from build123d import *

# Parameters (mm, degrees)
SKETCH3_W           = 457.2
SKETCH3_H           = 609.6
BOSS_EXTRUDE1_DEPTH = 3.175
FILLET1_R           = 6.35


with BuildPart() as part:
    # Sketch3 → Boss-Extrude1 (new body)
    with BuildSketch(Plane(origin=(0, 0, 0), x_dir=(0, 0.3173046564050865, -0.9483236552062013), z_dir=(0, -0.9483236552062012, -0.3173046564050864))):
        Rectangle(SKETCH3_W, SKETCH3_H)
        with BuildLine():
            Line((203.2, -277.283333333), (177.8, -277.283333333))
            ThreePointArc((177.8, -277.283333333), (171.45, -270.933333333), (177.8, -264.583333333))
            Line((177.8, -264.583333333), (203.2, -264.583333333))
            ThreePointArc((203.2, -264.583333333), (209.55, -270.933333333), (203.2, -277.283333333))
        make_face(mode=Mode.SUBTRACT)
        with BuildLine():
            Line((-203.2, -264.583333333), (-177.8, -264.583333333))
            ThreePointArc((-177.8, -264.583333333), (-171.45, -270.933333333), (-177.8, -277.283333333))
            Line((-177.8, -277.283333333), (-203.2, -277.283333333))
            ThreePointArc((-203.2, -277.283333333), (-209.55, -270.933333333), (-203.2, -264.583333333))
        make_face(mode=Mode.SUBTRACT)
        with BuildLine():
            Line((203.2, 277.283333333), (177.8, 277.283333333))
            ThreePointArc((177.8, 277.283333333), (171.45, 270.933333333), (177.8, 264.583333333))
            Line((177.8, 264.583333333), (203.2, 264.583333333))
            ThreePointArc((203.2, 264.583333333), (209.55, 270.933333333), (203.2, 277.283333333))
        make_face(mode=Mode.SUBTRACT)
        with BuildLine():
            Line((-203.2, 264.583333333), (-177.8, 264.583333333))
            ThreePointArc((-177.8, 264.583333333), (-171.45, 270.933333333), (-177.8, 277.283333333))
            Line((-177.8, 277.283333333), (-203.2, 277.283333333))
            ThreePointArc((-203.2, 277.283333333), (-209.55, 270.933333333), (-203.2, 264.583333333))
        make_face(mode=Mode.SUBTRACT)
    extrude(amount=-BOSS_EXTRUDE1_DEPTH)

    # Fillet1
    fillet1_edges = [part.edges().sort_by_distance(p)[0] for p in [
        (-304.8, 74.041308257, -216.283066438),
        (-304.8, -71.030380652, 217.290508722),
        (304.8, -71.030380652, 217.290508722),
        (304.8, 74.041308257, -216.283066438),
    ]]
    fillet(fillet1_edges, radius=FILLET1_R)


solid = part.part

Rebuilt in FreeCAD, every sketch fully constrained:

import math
import FreeCAD as App
import Part
import Sketcher
from FreeCAD import Vector
Q = App.Units.Quantity


def edges_at(feature, points):
    """Names of the edges that pass closest to the given points."""
    edges = feature.Shape.Edges
    near = lambda p: min(range(len(edges)), key=lambda i: edges[i].distToShape(Part.Vertex(*p))[0])
    return sorted({f"Edge{near(p) + 1}" for p in points})


def add_polygon(sketch, points):
    """Adds a closed chain of lines whose ends are joined by coincident constraints."""
    first, n = sketch.GeometryCount, len(points)
    for a, b in zip(points, points[1:] + points[:1]):
        sketch.addGeometry(Part.LineSegment(App.Vector(*a, 0), App.Vector(*b, 0)), False)
    for i in range(n):
        sketch.addConstraint(Sketcher.Constraint("Coincident", first + i, 2, first + (i + 1) % n, 1))

doc = App.newDocument("Part")
body = doc.addObject("PartDesign::Body", "Body")

sketch1 = body.newObject("Sketcher::SketchObject", "Sketch")
sketch1.Placement = App.Placement(Vector(0, 0, 0), App.Rotation(Vector(0, 0.317304656, -0.948323655), Vector(0.999999999, 0, 0), Vector(0, -0.948323655, -0.317304656), "ZXY"))
add_polygon(sketch1, [(-229, 305), (-229, -305), (229, -305), (229, 305)])
sketch1.addGeometry(Part.ArcOfCircle(Part.Circle(Vector(-203, -271, 0), Vector(0, 0, 1), 6), math.radians(90), math.radians(270)), False)
sketch1.addGeometry(Part.LineSegment(Vector(-203, -265, 0), Vector(-178, -265, 0)), False)
sketch1.addGeometry(Part.ArcOfCircle(Part.Circle(Vector(-178, -271, 0), Vector(0, 0, 1), 6), math.radians(-90), math.radians(90)), False)
sketch1.addGeometry(Part.LineSegment(Vector(-178, -277, 0), Vector(-203, -277, 0)), False)
sketch1.addGeometry(Part.ArcOfCircle(Part.Circle(Vector(203, -271, 0), Vector(0, 0, 1), 6), math.radians(-90), math.radians(90)), False)
sketch1.addGeometry(Part.LineSegment(Vector(203, -277, 0), Vector(178, -277, 0)), False)
sketch1.addGeometry(Part.ArcOfCircle(Part.Circle(Vector(178, -271, 0), Vector(0, 0, 1), 6), math.radians(90), math.radians(270)), False)
sketch1.addGeometry(Part.LineSegment(Vector(178, -265, 0), Vector(203, -265, 0)), False)
sketch1.addGeometry(Part.LineSegment(Vector(-178, 265, 0), Vector(-203, 265, 0)), False)
sketch1.addGeometry(Part.ArcOfCircle(Part.Circle(Vector(-203, 271, 0), Vector(0, 0, 1), 6), math.radians(90), math.radians(270)), False)
sketch1.addGeometry(Part.LineSegment(Vector(-203, 277, 0), Vector(-178, 277, 0)), False)
sketch1.addGeometry(Part.ArcOfCircle(Part.Circle(Vector(-178, 271, 0), Vector(0, 0, 1), 6), math.radians(-90), math.radians(90)), False)
sketch1.addGeometry(Part.LineSegment(Vector(178, 277, 0), Vector(203, 277, 0)), False)
sketch1.addGeometry(Part.ArcOfCircle(Part.Circle(Vector(203, 271, 0), Vector(0, 0, 1), 6), math.radians(-90), math.radians(90)), False)
sketch1.addGeometry(Part.LineSegment(Vector(203, 265, 0), Vector(178, 265, 0)), False)
sketch1.addGeometry(Part.ArcOfCircle(Part.Circle(Vector(178, 271, 0), Vector(0, 0, 1), 6), math.radians(90), math.radians(270)), False)
sketch1.addConstraint(Sketcher.Constraint("Tangent", 4, 1, 5, 1))
sketch1.addConstraint(Sketcher.Constraint("Tangent", 5, 2, 6, 2))
sketch1.addConstraint(Sketcher.Constraint("Tangent", 6, 1, 7, 1))
sketch1.addConstraint(Sketcher.Constraint("Tangent", 7, 2, 4, 2))
sketch1.addConstraint(Sketcher.Constraint("Tangent", 8, 1, 9, 1))
sketch1.addConstraint(Sketcher.Constraint("Tangent", 9, 2, 10, 2))
sketch1.addConstraint(Sketcher.Constraint("Tangent", 10, 1, 11, 1))
sketch1.addConstraint(Sketcher.Constraint("Tangent", 11, 2, 8, 2))
sketch1.addConstraint(Sketcher.Constraint("Tangent", 12, 2, 13, 2))
sketch1.addConstraint(Sketcher.Constraint("Tangent", 13, 1, 14, 1))
sketch1.addConstraint(Sketcher.Constraint("Tangent", 14, 2, 15, 2))
sketch1.addConstraint(Sketcher.Constraint("Tangent", 15, 1, 12, 1))
sketch1.addConstraint(Sketcher.Constraint("Tangent", 16, 2, 17, 2))
sketch1.addConstraint(Sketcher.Constraint("Tangent", 17, 1, 18, 1))
sketch1.addConstraint(Sketcher.Constraint("Tangent", 18, 2, 19, 2))
sketch1.addConstraint(Sketcher.Constraint("Tangent", 19, 1, 16, 1))
sketch1.addConstraint(Sketcher.Constraint("Vertical", 0))
sketch1.addConstraint(Sketcher.Constraint("Horizontal", 1))
sketch1.addConstraint(Sketcher.Constraint("Vertical", 2))
sketch1.addConstraint(Sketcher.Constraint("Horizontal", 3))
sketch1.addConstraint(Sketcher.Constraint("Horizontal", 5))
sketch1.addConstraint(Sketcher.Constraint("Horizontal", 7))
sketch1.addConstraint(Sketcher.Constraint("Horizontal", 9))
sketch1.addConstraint(Sketcher.Constraint("Horizontal", 11))
sketch1.addConstraint(Sketcher.Constraint("Horizontal", 12))
sketch1.addConstraint(Sketcher.Constraint("Horizontal", 14))
sketch1.addConstraint(Sketcher.Constraint("Horizontal", 16))
sketch1.addConstraint(Sketcher.Constraint("Horizontal", 18))
sketch1.addConstraint(Sketcher.Constraint("Equal", 6, 8))
sketch1.addConstraint(Sketcher.Constraint("Equal", 10, 13))
sketch1.addConstraint(Sketcher.Constraint("Equal", 15, 17))
sketch1.addConstraint(Sketcher.Constraint("Symmetric", 8, 3, 13, 3, -1, 1))
sketch1.addConstraint(Sketcher.Constraint("Symmetric", 4, 3, 17, 3, -1, 1))
sketch1.addConstraint(Sketcher.Constraint("Symmetric", 0, 2, 2, 2, -1, 1))
sketch1.addConstraint(Sketcher.Constraint("Symmetric", 4, 3, 8, 3, -2))
sketch1.addConstraint(Sketcher.Constraint("Vertical", 6, 3, 15, 3))
sketch1.addConstraint(Sketcher.Constraint("Vertical", 10, 3, 19, 3))
sketch1.addConstraint(Sketcher.Constraint("Equal", 7, 9))
sketch1.addConstraint(Sketcher.Constraint("DistanceX", 1, 1, 1, 2, Q("18 in")))
sketch1.addConstraint(Sketcher.Constraint("DistanceX", 5, 1, 5, 2, Q("1 in")))
sketch1.addConstraint(Sketcher.Constraint("DistanceY", 0, 2, 0, 1, Q("24 in")))
sketch1.addConstraint(Sketcher.Constraint("Radius", 4, Q("0.25 in")))
sketch1.addConstraint(Sketcher.Constraint("DistanceX", 4, 3, -1, 1, Q("8 in")))
sketch1.addConstraint(Sketcher.Constraint("DistanceY", 4, 3, -1, 1, 270.933333))
pad1 = body.newObject("PartDesign::Pad", "Pad")
pad1.Profile = sketch1
pad1.Length = Q("0.125 in")
pad1.Reversed = True
doc.recompute()

fillet = body.newObject("PartDesign::Fillet", "Fillet")
fillet.Base = (pad1, edges_at(pad1, [
    (-304.8, 74.041, -216.283),
    (-304.8, -71.03, 217.291),
    (304.8, -71.03, 217.291),
    (304.8, 74.041, -216.283),
]))
fillet.Radius = Q("0.25 in")

doc.recompute()
